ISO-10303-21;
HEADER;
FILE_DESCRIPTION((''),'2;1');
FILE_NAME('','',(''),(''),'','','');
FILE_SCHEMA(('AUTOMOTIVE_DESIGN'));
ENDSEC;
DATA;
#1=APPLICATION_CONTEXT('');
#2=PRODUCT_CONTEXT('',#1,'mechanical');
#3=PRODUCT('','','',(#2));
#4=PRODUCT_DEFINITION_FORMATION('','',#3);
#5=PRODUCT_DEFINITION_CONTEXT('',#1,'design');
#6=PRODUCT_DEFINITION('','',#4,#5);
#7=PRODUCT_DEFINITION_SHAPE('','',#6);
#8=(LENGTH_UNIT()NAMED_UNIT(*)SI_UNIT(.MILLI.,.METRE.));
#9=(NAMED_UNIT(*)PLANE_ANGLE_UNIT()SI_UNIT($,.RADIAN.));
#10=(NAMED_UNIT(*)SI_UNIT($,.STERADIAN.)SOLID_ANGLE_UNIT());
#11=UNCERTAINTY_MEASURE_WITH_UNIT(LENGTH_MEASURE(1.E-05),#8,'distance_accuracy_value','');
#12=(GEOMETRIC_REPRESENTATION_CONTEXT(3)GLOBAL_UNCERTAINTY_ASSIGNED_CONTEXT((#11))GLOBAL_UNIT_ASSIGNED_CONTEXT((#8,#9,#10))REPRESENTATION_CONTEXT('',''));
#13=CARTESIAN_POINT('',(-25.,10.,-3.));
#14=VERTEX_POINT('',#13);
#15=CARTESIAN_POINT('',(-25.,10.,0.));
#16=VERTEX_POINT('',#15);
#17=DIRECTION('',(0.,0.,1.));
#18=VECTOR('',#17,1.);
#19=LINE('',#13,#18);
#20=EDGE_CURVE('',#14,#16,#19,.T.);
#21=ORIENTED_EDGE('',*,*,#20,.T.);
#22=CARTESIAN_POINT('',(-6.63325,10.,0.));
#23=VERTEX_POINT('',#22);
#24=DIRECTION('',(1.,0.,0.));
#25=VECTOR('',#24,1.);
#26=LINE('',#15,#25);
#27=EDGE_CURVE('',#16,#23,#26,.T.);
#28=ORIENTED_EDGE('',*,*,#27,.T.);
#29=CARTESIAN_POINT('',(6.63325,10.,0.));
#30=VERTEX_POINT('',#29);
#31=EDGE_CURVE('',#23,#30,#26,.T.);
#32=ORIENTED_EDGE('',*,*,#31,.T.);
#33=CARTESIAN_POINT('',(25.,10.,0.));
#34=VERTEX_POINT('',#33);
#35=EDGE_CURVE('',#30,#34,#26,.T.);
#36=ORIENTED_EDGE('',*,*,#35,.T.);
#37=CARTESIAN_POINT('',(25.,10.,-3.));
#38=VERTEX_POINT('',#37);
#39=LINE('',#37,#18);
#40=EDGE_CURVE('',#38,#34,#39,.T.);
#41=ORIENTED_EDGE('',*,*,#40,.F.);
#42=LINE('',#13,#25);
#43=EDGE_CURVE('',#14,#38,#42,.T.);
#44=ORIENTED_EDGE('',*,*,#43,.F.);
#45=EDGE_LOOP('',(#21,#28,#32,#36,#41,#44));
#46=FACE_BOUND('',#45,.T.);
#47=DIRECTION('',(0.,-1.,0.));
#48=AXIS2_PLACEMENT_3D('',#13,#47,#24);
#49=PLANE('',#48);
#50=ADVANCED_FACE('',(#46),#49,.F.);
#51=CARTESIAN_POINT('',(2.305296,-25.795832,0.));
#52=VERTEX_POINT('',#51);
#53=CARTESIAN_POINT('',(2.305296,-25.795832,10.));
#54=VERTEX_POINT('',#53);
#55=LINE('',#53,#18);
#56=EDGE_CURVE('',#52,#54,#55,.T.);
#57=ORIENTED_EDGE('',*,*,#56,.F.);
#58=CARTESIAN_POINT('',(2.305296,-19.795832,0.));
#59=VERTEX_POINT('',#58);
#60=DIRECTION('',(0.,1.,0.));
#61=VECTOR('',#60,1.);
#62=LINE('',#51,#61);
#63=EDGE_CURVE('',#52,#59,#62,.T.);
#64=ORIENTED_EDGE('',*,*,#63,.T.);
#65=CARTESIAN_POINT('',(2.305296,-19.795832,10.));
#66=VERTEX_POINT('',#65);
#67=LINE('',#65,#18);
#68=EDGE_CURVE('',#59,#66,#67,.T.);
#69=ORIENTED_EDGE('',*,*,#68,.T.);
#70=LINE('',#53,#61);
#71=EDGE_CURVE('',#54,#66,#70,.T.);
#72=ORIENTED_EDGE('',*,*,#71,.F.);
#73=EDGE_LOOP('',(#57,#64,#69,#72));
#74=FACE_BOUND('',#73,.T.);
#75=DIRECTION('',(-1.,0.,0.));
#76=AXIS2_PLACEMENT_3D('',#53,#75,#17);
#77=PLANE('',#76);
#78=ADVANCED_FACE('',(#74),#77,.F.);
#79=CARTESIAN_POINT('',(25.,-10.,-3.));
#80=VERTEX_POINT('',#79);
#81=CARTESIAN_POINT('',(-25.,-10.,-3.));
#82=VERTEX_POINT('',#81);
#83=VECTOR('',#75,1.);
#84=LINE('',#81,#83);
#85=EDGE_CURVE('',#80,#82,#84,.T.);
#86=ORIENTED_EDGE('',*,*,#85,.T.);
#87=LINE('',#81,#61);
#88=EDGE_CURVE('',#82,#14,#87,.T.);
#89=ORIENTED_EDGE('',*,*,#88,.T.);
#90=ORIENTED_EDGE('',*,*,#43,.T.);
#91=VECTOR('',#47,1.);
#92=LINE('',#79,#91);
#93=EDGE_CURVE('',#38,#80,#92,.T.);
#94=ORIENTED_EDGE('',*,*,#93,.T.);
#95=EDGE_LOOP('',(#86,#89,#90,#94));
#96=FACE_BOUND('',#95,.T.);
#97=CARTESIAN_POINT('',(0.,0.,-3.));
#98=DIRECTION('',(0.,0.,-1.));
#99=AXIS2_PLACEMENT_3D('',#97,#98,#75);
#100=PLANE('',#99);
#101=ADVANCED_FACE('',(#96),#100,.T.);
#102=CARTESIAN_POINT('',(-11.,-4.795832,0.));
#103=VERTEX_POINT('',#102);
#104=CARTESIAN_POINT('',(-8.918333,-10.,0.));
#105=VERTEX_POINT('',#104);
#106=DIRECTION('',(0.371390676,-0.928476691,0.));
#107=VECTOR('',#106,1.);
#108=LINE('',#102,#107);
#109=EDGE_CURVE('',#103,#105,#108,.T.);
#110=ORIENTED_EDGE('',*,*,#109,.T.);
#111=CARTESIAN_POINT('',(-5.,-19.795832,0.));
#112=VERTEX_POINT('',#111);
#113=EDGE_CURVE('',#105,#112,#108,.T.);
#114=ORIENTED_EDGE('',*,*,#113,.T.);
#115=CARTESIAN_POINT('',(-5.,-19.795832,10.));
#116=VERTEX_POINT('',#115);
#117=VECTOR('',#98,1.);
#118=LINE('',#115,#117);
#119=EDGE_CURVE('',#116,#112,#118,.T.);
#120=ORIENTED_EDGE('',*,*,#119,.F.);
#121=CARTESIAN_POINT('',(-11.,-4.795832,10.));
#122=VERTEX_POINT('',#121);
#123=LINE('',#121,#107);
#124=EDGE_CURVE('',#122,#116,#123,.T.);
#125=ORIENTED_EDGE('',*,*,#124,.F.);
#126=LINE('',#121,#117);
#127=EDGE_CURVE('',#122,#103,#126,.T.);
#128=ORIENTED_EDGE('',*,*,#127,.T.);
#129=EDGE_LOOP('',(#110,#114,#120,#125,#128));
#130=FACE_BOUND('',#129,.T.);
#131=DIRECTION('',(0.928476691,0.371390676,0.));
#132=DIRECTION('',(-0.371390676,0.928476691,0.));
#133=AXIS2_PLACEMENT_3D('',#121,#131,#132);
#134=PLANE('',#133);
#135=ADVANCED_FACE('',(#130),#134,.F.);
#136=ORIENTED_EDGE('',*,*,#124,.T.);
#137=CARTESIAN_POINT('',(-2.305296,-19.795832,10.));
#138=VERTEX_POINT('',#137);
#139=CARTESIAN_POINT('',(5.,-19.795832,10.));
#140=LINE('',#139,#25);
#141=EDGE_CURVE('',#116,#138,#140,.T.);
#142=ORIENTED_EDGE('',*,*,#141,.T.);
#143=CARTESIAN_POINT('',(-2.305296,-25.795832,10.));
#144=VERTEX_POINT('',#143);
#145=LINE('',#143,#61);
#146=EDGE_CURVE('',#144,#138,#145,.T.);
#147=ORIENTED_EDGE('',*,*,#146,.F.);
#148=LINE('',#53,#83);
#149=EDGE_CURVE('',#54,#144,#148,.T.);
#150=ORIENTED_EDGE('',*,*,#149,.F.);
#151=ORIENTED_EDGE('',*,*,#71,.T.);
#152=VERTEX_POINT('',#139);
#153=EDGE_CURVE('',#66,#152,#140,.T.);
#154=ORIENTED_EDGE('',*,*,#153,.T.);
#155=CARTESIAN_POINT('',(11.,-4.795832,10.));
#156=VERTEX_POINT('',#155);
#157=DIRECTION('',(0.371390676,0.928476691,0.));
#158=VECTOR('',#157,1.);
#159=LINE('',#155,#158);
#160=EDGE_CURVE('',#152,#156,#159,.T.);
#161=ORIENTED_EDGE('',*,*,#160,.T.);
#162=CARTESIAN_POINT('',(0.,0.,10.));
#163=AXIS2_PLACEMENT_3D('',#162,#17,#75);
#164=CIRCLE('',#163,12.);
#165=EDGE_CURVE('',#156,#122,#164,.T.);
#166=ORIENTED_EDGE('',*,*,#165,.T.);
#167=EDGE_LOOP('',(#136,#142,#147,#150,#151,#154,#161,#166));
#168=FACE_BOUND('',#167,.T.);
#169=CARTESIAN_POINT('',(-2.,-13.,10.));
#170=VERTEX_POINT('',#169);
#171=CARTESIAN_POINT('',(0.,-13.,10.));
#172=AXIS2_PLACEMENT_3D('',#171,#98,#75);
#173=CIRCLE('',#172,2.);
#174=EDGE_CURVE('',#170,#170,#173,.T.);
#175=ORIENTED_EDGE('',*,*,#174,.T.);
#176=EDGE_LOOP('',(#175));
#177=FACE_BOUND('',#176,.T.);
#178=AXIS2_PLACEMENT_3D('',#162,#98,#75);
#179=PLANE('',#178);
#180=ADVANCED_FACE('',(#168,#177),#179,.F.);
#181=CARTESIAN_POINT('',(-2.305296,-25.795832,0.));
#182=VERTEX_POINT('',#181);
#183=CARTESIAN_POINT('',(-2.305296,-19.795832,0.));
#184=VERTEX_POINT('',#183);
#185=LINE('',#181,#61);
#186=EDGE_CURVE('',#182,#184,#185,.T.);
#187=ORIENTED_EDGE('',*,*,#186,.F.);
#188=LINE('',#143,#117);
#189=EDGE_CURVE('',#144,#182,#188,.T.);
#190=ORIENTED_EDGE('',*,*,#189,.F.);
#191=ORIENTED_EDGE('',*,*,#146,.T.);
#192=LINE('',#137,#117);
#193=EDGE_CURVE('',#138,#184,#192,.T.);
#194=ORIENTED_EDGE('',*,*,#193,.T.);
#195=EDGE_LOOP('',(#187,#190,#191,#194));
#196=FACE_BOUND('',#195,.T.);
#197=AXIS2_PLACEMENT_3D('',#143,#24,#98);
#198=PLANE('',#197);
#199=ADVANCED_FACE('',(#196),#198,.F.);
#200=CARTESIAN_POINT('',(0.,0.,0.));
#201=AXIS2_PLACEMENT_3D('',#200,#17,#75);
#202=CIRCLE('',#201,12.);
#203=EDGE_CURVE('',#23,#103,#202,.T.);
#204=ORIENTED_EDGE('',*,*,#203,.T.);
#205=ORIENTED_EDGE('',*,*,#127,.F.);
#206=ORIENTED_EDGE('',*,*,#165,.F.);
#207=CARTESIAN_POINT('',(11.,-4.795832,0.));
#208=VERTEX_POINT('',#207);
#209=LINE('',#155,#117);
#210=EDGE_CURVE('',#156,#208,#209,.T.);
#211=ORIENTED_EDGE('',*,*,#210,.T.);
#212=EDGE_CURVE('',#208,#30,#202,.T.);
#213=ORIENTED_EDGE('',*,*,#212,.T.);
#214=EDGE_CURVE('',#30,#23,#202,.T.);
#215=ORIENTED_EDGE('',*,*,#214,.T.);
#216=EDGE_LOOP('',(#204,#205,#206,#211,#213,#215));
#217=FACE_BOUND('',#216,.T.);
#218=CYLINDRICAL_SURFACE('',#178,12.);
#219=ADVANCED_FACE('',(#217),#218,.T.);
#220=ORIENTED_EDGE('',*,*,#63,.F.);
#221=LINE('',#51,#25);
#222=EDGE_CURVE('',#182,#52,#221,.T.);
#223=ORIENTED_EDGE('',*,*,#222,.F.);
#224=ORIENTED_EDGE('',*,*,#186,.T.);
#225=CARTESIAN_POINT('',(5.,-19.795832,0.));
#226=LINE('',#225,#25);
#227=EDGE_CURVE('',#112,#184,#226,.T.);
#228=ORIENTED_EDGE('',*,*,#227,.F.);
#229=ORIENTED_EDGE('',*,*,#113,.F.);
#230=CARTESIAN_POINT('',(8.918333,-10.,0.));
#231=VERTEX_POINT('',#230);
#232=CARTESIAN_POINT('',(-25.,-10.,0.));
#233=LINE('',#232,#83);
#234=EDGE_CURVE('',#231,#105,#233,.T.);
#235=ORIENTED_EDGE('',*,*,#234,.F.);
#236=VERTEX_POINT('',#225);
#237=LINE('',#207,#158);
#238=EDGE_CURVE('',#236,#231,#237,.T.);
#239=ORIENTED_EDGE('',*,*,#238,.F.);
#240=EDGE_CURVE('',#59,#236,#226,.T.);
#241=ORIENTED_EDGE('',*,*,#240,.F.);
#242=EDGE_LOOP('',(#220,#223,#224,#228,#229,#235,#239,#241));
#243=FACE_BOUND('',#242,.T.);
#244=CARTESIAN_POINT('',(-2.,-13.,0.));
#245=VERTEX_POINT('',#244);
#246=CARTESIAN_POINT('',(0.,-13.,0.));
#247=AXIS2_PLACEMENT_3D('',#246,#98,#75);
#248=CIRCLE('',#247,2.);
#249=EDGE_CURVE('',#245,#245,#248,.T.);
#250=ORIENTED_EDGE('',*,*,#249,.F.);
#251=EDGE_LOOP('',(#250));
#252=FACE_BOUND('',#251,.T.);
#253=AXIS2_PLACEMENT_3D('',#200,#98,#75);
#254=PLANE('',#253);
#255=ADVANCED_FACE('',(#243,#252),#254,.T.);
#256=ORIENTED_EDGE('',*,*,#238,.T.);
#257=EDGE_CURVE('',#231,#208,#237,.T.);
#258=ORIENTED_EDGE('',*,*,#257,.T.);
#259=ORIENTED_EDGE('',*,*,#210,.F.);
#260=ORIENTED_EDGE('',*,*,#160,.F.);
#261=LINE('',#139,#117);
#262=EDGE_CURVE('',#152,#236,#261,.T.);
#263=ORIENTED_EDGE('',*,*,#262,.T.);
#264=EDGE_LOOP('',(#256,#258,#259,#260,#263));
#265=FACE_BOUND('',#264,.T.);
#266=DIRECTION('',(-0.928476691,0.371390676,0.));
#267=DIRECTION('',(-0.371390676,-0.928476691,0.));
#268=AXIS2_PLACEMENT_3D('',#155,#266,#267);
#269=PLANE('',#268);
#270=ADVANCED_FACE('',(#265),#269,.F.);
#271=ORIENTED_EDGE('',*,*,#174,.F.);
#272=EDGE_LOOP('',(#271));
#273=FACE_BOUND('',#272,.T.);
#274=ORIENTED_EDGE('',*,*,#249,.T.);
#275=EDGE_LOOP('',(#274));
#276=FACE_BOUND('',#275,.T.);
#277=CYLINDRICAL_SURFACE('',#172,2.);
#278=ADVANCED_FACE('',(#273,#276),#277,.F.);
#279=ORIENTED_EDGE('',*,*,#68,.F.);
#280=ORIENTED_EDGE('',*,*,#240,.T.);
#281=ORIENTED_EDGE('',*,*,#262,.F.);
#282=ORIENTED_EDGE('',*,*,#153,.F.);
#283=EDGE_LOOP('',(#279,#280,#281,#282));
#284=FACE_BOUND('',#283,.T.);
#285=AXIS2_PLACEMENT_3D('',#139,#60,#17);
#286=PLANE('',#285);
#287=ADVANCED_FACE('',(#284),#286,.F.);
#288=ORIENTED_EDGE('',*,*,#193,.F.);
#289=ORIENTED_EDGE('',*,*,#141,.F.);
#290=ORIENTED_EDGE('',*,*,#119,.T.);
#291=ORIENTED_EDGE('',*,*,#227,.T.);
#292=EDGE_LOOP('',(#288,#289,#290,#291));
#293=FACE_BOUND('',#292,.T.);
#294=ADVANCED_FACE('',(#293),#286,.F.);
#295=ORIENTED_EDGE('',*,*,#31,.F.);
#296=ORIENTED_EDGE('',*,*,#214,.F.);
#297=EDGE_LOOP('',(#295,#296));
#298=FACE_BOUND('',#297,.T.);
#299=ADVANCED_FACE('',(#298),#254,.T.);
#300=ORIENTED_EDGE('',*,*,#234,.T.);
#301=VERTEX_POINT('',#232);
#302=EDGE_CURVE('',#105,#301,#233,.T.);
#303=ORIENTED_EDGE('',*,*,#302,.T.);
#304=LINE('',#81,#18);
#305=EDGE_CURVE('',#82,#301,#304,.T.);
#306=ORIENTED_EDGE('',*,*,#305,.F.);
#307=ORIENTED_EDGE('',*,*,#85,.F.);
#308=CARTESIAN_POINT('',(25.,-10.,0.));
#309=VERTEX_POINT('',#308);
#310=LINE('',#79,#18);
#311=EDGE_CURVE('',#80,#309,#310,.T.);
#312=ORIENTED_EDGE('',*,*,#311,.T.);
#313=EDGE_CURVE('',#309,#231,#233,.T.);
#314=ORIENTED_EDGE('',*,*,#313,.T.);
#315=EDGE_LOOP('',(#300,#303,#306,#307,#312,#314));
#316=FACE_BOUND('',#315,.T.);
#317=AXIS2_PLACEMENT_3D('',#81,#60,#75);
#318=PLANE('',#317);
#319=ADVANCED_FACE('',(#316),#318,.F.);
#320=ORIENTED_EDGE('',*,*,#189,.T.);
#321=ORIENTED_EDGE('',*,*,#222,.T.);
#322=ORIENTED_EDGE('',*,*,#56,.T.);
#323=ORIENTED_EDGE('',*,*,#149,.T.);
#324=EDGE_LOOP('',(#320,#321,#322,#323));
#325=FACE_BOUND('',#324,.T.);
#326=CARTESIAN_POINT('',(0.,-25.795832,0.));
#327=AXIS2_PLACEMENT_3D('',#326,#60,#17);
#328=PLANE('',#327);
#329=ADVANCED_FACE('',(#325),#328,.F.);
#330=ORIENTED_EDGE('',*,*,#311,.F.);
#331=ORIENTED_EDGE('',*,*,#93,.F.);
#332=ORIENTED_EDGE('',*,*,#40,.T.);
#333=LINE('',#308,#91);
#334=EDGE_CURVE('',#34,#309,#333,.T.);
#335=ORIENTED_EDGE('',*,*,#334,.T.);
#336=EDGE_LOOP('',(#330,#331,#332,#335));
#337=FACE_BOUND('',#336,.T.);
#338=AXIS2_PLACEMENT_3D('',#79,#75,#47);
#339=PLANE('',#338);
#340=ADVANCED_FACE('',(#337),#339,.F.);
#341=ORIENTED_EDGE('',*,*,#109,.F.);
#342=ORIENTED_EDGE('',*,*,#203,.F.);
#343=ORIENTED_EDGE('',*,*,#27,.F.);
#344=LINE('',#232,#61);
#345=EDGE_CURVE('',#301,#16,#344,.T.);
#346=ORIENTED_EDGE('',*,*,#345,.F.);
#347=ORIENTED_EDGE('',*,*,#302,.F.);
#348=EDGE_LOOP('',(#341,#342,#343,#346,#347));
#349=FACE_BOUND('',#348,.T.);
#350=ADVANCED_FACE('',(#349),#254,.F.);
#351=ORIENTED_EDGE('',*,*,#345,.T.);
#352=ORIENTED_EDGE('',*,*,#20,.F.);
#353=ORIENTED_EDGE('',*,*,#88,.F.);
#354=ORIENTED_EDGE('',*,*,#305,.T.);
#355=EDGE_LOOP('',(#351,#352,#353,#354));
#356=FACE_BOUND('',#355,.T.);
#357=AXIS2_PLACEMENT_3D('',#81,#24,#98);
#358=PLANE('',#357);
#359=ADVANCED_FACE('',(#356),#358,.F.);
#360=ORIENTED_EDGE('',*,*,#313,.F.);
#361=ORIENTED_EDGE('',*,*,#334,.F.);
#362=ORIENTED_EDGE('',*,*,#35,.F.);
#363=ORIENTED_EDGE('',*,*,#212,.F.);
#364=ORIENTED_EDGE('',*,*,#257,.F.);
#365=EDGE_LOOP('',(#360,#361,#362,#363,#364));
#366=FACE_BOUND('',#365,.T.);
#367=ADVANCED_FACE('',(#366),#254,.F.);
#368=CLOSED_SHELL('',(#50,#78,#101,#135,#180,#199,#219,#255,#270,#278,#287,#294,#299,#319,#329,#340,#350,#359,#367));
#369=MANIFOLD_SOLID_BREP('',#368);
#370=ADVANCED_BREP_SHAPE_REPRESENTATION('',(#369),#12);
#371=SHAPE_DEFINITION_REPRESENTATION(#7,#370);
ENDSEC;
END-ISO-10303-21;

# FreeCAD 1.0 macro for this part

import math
import FreeCAD as App
import Part
import Sketcher
from FreeCAD import Vector


def add_polygon(sketch, points):
    """Adds a closed chain of lines whose ends are joined by coincident constraints."""
    first, n = sketch.GeometryCount, len(points)
    for a, b in zip(points, points[1:] + points[:1]):
        sketch.addGeometry(Part.LineSegment(App.Vector(*a, 0), App.Vector(*b, 0)), False)
    for i in range(n):
        sketch.addConstraint(Sketcher.Constraint("Coincident", first + i, 2, first + (i + 1) % n, 1))

doc = App.newDocument("Part")
body = doc.addObject("PartDesign::Body", "Body")

sketch1 = body.newObject("Sketcher::SketchObject", "Sketch")
sketch1.AttachmentSupport = (doc.getObject("XY_Plane"), [""])
sketch1.MapMode = "FlatFace"
sketch1.addGeometry([
    Part.LineSegment(Vector(-11, -5, 0), Vector(-5, -20, 0)),
    Part.LineSegment(Vector(-5, -20, 0), Vector(5, -20, 0)),
    Part.LineSegment(Vector(5, -20, 0), Vector(11, -5, 0)),
    Part.ArcOfCircle(Part.Circle(Vector(0, 0, 0), Vector(0, 0, 1), 12), math.radians(-24), math.radians(204)),
], False)
sketch1.addConstraint([
    Sketcher.Constraint("Coincident", 0, 2, 1, 1),
    Sketcher.Constraint("Coincident", 1, 2, 2, 1),
    Sketcher.Constraint("Coincident", 2, 2, 3, 1),
    Sketcher.Constraint("Coincident", 3, 2, 0, 1),
    Sketcher.Constraint("Horizontal", 1),
    Sketcher.Constraint("Coincident", 3, 3, -1, 1),
    Sketcher.Constraint("Horizontal", 2, 2, 3, 2),
    Sketcher.Constraint("Equal", 0, 2),
    Sketcher.Constraint("Radius", 3, 12.0),
    Sketcher.Constraint("DistanceX", 1, 1, 1, 2, 10.0),
    Sketcher.Constraint("DistanceX", -1, 1, 2, 2, 11.0),
    Sketcher.Constraint("DistanceY", 1, 2, 2, 2, 15.0),
])
pad1 = body.newObject("PartDesign::Pad", "Pad")
pad1.Profile = sketch1
pad1.Length = 10

sketch2 = body.newObject("Sketcher::SketchObject", "Sketch001")
sketch2.AttachmentSupport = (doc.getObject("XY_Plane"), [""])
sketch2.MapMode = "FlatFace"
sketch2.addGeometry(Part.Circle(Vector(0, -13, 0), Vector(0, 0, 1), 2), False)
sketch2.addConstraint([
    Sketcher.Constraint("PointOnObject", 0, 3, -2),
    Sketcher.Constraint("Diameter", 0, 4.0),
    Sketcher.Constraint("DistanceY", 0, 3, -1, 1, 13.0),
])
pocket1 = body.newObject("PartDesign::Pocket", "Pocket")
pocket1.Profile = sketch2
pocket1.Length = 10
pocket1.Reversed = True

sketch3 = body.newObject("Sketcher::SketchObject", "Sketch002")
sketch3.AttachmentSupport = (doc.getObject("XZ_Plane"), [""])
sketch3.MapMode = "FlatFace"
sketch3.AttachmentOffset = App.Placement(Vector(0, 0, 19.795832), App.Rotation())
add_polygon(sketch3, [(2.3, 0), (2.3, 10), (-2.3, 10), (-2.3, 0)])
sketch3.addConstraint([
    Sketcher.Constraint("Vertical", 0),
    Sketcher.Constraint("Horizontal", 1),
    Sketcher.Constraint("Vertical", 2),
    Sketcher.Constraint("Horizontal", 3),
    Sketcher.Constraint("Symmetric", 2, 2, 3, 2, -1, 1),
    Sketcher.Constraint("DistanceY", 0, 1, 0, 2, 10.0),
    Sketcher.Constraint("DistanceX", 1, 2, 1, 1, 4.610592),
])
pad2 = body.newObject("PartDesign::Pad", "Pad001")
pad2.Profile = sketch3
pad2.Length = 6

sketch4 = body.newObject("Sketcher::SketchObject", "Sketch003")
sketch4.AttachmentSupport = (doc.getObject("XY_Plane"), [""])
sketch4.MapMode = "FlatFace"
add_polygon(sketch4, [(25, 10), (25, -10), (-25, -10), (-25, 10)])
sketch4.addConstraint([
    Sketcher.Constraint("Vertical", 0),
    Sketcher.Constraint("Horizontal", 1),
    Sketcher.Constraint("Vertical", 2),
    Sketcher.Constraint("Horizontal", 3),
    Sketcher.Constraint("Symmetric", 0, 2, 2, 2, -1, 1),
    Sketcher.Constraint("DistanceX", 1, 2, 1, 1, 50.0),
    Sketcher.Constraint("DistanceY", 0, 2, 0, 1, 20.0),
])
pad3 = body.newObject("PartDesign::Pad", "Pad002")
pad3.Profile = sketch4
pad3.Length = 3
pad3.Reversed = True

doc.recompute()
